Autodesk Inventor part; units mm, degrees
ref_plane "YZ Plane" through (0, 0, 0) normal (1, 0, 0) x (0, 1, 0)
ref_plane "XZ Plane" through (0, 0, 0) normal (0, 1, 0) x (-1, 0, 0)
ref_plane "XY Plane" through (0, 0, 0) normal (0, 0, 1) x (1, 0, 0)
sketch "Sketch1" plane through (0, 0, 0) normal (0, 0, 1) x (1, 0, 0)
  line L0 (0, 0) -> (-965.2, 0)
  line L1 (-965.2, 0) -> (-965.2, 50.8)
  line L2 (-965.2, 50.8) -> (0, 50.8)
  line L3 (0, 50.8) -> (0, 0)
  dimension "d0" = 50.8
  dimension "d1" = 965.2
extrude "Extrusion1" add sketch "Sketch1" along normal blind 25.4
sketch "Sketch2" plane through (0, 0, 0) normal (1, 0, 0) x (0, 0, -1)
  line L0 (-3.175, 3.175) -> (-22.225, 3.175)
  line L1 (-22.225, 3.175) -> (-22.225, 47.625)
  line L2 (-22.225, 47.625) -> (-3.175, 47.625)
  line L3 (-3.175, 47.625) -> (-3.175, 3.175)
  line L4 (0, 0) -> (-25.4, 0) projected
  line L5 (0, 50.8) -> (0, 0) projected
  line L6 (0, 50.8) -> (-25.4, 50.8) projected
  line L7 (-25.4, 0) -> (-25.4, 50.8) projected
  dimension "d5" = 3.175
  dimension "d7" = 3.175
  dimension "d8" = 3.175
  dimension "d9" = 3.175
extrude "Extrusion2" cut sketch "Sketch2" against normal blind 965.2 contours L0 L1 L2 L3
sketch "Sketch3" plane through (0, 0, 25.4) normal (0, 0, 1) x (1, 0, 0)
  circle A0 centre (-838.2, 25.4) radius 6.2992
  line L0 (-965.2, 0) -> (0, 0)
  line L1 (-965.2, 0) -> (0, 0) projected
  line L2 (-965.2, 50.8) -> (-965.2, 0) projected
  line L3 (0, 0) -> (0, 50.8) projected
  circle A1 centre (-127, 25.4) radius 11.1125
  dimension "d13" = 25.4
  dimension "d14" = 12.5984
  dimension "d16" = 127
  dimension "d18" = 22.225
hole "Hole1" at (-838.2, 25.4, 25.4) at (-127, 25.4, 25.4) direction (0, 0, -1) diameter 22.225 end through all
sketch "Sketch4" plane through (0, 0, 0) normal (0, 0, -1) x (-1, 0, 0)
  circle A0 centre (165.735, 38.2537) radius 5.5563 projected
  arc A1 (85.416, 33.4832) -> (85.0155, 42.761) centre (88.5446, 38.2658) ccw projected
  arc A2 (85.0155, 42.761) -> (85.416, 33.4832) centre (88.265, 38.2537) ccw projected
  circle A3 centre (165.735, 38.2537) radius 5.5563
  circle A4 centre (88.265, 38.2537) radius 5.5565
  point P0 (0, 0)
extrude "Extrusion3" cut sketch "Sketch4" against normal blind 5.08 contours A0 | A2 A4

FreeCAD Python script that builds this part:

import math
import FreeCAD as App
import Part
import Sketcher
Q = App.Units.Quantity


def add_polygon(sketch, points):
    """Adds a closed chain of lines whose ends are joined by coincident constraints."""
    first, n = sketch.GeometryCount, len(points)
    for a, b in zip(points, points[1:] + points[:1]):
        sketch.addGeometry(Part.LineSegment(App.Vector(*a, 0), App.Vector(*b, 0)), False)
    for i in range(n):
        sketch.addConstraint(Sketcher.Constraint("Coincident", first + i, 2, first + (i + 1) % n, 1))

doc = App.newDocument("Part")
params = doc.addObject("Spreadsheet::Sheet", "Params")
for row, (alias, value) in enumerate([
    ("sketch1_width", "38 in"),
    ("sketch1_height", "2 in"),
    ("pad1_length", "1 in"),
    ("sketch2_width", "1.75 in"),
    ("sketch2_height", "0.75 in"),
    ("pocket1_length", "38 in"),
    ("sketch3_diameter", "0.875 in"),
    ("hole_diameter", "0.875 in"),
    ("sketch4_diameter", "0.4375 in"),
    ("pocket2_length", "0.2 in"),
], start=1):
    params.set(f"A{row}", alias)
    params.set(f"B{row}", "=" + value)
    params.setAlias(f"B{row}", alias)

body = doc.addObject("PartDesign::Body", "Body")

sketch1 = body.newObject("Sketcher::SketchObject", "Sketch")
sketch1.AttachmentSupport = (doc.getObject("XY_Plane"), [""])
sketch1.MapMode = "FlatFace"
add_polygon(sketch1, [(-965, 0), (0, 0), (0, 51), (-965, 51)])
sketch1.addConstraint(Sketcher.Constraint("Horizontal", 0))
sketch1.addConstraint(Sketcher.Constraint("Vertical", 1))
sketch1.addConstraint(Sketcher.Constraint("Horizontal", 2))
sketch1.addConstraint(Sketcher.Constraint("Vertical", 3))
sketch1.addConstraint(Sketcher.Constraint("Coincident", 0, 2, -1, 1))
sketch1.addConstraint(Sketcher.Constraint("DistanceX", 0, 1, 0, 2, Q("38 in")))
sketch1.addConstraint(Sketcher.Constraint("DistanceY", 1, 1, 1, 2, Q("2 in")))
sketch1.setExpression("Constraints[9]", "Params.sketch1_width")
sketch1.setExpression("Constraints[10]", "Params.sketch1_height")
pad1 = body.newObject("PartDesign::Pad", "Pad")
pad1.Profile = sketch1
pad1.setExpression("Length", "Params.pad1_length")

sketch2 = body.newObject("Sketcher::SketchObject", "Sketch001")
sketch2.AttachmentSupport = (doc.getObject("YZ_Plane"), [""])
sketch2.MapMode = "FlatFace"
add_polygon(sketch2, [(3, 22), (3, 3), (48, 3), (48, 22)])
sketch2.addConstraint(Sketcher.Constraint("Vertical", 0))
sketch2.addConstraint(Sketcher.Constraint("Horizontal", 1))
sketch2.addConstraint(Sketcher.Constraint("Vertical", 2))
sketch2.addConstraint(Sketcher.Constraint("Horizontal", 3))
sketch2.addConstraint(Sketcher.Constraint("DistanceX", -1, 1, 0, 2, Q("0.125 in")))
sketch2.addConstraint(Sketcher.Constraint("DistanceY", -1, 1, 0, 2, Q("0.125 in")))
sketch2.addConstraint(Sketcher.Constraint("DistanceX", 1, 1, 1, 2, Q("1.75 in")))
sketch2.addConstraint(Sketcher.Constraint("DistanceY", 0, 2, 0, 1, Q("0.75 in")))
sketch2.setExpression("Constraints[10]", "Params.sketch2_width")
sketch2.setExpression("Constraints[11]", "Params.sketch2_height")
pocket1 = body.newObject("PartDesign::Pocket", "Pocket")
pocket1.Profile = sketch2
pocket1.setExpression("Length", "Params.pocket1_length")

sketch3 = body.newObject("Sketcher::SketchObject", "Sketch002")
sketch3.AttachmentSupport = (doc.getObject("XY_Plane"), [""])
sketch3.MapMode = "FlatFace"
sketch3.AttachmentOffset = App.Placement(App.Vector(0, 0, 1 * 25.4), App.Rotation())
sketch3.addGeometry(Part.Circle(App.Vector(-838, 25, 0), App.Vector(0, 0, 1), 11), False)
sketch3.addGeometry(Part.Circle(App.Vector(-127, 25, 0), App.Vector(0, 0, 1), 11), False)
sketch3.addConstraint(Sketcher.Constraint("Equal", 0, 1))
sketch3.addConstraint(Sketcher.Constraint("Horizontal", 0, 3, 1, 3))
sketch3.addConstraint(Sketcher.Constraint("Diameter", 0, Q("0.875 in")))
sketch3.addConstraint(Sketcher.Constraint("DistanceX", 0, 3, -1, 1, Q("33 in")))
sketch3.addConstraint(Sketcher.Constraint("DistanceY", -1, 1, 0, 3, Q("1 in")))
sketch3.addConstraint(Sketcher.Constraint("DistanceX", 1, 3, -1, 1, Q("5 in")))
sketch3.setExpression("Constraints[2]", "Params.sketch3_diameter")
doc.recompute()
hole = body.newObject("PartDesign::Hole", "Hole")
hole.Profile = sketch3
hole.ThreadType = "None"
hole.setExpression("Diameter", "Params.hole_diameter")
hole.DepthType = "ThroughAll"

sketch4 = body.newObject("Sketcher::SketchObject", "Sketch003")
sketch4.AttachmentSupport = (doc.getObject("XY_Plane"), [""])
sketch4.MapMode = "FlatFace"
sketch4.addGeometry(Part.Circle(App.Vector(-166, 38, 0), App.Vector(0, 0, 1), 6), False)
sketch4.addGeometry(Part.ArcOfCircle(Part.Circle(App.Vector(-88, 38, 0), App.Vector(0, 0, 1), 6), math.radians(-59), math.radians(54)), False)
sketch4.addGeometry(Part.ArcOfCircle(Part.Circle(App.Vector(-88, 38, 0), App.Vector(0, 0, 1), 6), math.radians(54), math.radians(301)), False)
sketch4.addConstraint(Sketcher.Constraint("Tangent", 1, 1, 2, 2))
sketch4.addConstraint(Sketcher.Constraint("Coincident", 2, 1, 1, 2))
sketch4.addConstraint(Sketcher.Constraint("Equal", 0, 1))
sketch4.addConstraint(Sketcher.Constraint("Horizontal", 0, 3, 1, 3))
sketch4.addConstraint(Sketcher.Constraint("Diameter", 0, Q("0.4375 in")))
sketch4.addConstraint(Sketcher.Constraint("DistanceX", 0, 3, 1, 3, Q("3.05 in")))
sketch4.addConstraint(Sketcher.Constraint("DistanceX", 0, 3, -1, 1, Q("6.525 in")))
sketch4.addConstraint(Sketcher.Constraint("DistanceY", -1, 1, 2, 1, Q("1.6835 in")))
sketch4.addConstraint(Sketcher.Constraint("DistanceY", -1, 1, 0, 3, 38.2537))
sketch4.addConstraint(Sketcher.Constraint("DistanceX", 1, 1, -1, 1, 85.416))
sketch4.setExpression("Constraints[4]", "Params.sketch4_diameter")
pocket2 = body.newObject("PartDesign::Pocket", "Pocket001")
pocket2.Profile = sketch4
pocket2.setExpression("Length", "Params.pocket2_length")
pocket2.Reversed = True

doc.recompute()
